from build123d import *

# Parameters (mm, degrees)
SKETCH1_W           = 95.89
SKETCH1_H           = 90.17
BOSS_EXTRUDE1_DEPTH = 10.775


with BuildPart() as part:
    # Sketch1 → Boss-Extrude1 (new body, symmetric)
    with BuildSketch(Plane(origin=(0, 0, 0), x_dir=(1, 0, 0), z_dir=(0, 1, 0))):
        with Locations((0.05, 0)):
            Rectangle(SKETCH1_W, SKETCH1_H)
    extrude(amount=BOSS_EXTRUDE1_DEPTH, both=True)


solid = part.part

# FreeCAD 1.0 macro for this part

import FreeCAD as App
import Part
import Sketcher

V = App.Vector
Q = App.Units.Quantity


def add_polygon(sketch, points):
    """Adds a closed chain of lines whose ends are joined by coincident constraints."""
    first, n = sketch.GeometryCount, len(points)
    for a, b in zip(points, points[1:] + points[:1]):
        sketch.addGeometry(Part.LineSegment(App.Vector(*a, 0), App.Vector(*b, 0)), False)
    for i in range(n):
        sketch.addConstraint(Sketcher.Constraint("Coincident", first + i, 2, first + (i + 1) % n, 1))

doc = App.newDocument("Part")
body = doc.addObject("PartDesign::Body", "Body")

# Sketch on XZ plane
sketch1 = body.newObject("Sketcher::SketchObject", "Sketch")
sketch1.AttachmentSupport = (doc.getObject("XZ_Plane"), [""])
sketch1.MapMode = "FlatFace"
add_polygon(sketch1, [(-47.895, -45.085), (-47.895, 45.085), (47.995, 45.085), (47.995, -45.085)])  # lines 0-3
sketch1.addConstraint([
    Sketcher.Constraint("Vertical", 0),
    Sketcher.Constraint("Horizontal", 1),
    Sketcher.Constraint("Vertical", 2),
    Sketcher.Constraint("Horizontal", 3),
    Sketcher.Constraint("DistanceY", 0, 1, 0, 2, Q("3.55 in")),
    Sketcher.Constraint("DistanceY", -1, 1, 0, 2, Q("1.775 in")),
    Sketcher.Constraint("DistanceX", 1, 1, 1, 2, 95.89),
    Sketcher.Constraint("DistanceX", 0, 2, -1, 1, 47.895),
])
pad1 = body.newObject("PartDesign::Pad", "Pad")
pad1.Profile = sketch1
pad1.Length = 21.55
pad1.Midplane = True

doc.recompute()
